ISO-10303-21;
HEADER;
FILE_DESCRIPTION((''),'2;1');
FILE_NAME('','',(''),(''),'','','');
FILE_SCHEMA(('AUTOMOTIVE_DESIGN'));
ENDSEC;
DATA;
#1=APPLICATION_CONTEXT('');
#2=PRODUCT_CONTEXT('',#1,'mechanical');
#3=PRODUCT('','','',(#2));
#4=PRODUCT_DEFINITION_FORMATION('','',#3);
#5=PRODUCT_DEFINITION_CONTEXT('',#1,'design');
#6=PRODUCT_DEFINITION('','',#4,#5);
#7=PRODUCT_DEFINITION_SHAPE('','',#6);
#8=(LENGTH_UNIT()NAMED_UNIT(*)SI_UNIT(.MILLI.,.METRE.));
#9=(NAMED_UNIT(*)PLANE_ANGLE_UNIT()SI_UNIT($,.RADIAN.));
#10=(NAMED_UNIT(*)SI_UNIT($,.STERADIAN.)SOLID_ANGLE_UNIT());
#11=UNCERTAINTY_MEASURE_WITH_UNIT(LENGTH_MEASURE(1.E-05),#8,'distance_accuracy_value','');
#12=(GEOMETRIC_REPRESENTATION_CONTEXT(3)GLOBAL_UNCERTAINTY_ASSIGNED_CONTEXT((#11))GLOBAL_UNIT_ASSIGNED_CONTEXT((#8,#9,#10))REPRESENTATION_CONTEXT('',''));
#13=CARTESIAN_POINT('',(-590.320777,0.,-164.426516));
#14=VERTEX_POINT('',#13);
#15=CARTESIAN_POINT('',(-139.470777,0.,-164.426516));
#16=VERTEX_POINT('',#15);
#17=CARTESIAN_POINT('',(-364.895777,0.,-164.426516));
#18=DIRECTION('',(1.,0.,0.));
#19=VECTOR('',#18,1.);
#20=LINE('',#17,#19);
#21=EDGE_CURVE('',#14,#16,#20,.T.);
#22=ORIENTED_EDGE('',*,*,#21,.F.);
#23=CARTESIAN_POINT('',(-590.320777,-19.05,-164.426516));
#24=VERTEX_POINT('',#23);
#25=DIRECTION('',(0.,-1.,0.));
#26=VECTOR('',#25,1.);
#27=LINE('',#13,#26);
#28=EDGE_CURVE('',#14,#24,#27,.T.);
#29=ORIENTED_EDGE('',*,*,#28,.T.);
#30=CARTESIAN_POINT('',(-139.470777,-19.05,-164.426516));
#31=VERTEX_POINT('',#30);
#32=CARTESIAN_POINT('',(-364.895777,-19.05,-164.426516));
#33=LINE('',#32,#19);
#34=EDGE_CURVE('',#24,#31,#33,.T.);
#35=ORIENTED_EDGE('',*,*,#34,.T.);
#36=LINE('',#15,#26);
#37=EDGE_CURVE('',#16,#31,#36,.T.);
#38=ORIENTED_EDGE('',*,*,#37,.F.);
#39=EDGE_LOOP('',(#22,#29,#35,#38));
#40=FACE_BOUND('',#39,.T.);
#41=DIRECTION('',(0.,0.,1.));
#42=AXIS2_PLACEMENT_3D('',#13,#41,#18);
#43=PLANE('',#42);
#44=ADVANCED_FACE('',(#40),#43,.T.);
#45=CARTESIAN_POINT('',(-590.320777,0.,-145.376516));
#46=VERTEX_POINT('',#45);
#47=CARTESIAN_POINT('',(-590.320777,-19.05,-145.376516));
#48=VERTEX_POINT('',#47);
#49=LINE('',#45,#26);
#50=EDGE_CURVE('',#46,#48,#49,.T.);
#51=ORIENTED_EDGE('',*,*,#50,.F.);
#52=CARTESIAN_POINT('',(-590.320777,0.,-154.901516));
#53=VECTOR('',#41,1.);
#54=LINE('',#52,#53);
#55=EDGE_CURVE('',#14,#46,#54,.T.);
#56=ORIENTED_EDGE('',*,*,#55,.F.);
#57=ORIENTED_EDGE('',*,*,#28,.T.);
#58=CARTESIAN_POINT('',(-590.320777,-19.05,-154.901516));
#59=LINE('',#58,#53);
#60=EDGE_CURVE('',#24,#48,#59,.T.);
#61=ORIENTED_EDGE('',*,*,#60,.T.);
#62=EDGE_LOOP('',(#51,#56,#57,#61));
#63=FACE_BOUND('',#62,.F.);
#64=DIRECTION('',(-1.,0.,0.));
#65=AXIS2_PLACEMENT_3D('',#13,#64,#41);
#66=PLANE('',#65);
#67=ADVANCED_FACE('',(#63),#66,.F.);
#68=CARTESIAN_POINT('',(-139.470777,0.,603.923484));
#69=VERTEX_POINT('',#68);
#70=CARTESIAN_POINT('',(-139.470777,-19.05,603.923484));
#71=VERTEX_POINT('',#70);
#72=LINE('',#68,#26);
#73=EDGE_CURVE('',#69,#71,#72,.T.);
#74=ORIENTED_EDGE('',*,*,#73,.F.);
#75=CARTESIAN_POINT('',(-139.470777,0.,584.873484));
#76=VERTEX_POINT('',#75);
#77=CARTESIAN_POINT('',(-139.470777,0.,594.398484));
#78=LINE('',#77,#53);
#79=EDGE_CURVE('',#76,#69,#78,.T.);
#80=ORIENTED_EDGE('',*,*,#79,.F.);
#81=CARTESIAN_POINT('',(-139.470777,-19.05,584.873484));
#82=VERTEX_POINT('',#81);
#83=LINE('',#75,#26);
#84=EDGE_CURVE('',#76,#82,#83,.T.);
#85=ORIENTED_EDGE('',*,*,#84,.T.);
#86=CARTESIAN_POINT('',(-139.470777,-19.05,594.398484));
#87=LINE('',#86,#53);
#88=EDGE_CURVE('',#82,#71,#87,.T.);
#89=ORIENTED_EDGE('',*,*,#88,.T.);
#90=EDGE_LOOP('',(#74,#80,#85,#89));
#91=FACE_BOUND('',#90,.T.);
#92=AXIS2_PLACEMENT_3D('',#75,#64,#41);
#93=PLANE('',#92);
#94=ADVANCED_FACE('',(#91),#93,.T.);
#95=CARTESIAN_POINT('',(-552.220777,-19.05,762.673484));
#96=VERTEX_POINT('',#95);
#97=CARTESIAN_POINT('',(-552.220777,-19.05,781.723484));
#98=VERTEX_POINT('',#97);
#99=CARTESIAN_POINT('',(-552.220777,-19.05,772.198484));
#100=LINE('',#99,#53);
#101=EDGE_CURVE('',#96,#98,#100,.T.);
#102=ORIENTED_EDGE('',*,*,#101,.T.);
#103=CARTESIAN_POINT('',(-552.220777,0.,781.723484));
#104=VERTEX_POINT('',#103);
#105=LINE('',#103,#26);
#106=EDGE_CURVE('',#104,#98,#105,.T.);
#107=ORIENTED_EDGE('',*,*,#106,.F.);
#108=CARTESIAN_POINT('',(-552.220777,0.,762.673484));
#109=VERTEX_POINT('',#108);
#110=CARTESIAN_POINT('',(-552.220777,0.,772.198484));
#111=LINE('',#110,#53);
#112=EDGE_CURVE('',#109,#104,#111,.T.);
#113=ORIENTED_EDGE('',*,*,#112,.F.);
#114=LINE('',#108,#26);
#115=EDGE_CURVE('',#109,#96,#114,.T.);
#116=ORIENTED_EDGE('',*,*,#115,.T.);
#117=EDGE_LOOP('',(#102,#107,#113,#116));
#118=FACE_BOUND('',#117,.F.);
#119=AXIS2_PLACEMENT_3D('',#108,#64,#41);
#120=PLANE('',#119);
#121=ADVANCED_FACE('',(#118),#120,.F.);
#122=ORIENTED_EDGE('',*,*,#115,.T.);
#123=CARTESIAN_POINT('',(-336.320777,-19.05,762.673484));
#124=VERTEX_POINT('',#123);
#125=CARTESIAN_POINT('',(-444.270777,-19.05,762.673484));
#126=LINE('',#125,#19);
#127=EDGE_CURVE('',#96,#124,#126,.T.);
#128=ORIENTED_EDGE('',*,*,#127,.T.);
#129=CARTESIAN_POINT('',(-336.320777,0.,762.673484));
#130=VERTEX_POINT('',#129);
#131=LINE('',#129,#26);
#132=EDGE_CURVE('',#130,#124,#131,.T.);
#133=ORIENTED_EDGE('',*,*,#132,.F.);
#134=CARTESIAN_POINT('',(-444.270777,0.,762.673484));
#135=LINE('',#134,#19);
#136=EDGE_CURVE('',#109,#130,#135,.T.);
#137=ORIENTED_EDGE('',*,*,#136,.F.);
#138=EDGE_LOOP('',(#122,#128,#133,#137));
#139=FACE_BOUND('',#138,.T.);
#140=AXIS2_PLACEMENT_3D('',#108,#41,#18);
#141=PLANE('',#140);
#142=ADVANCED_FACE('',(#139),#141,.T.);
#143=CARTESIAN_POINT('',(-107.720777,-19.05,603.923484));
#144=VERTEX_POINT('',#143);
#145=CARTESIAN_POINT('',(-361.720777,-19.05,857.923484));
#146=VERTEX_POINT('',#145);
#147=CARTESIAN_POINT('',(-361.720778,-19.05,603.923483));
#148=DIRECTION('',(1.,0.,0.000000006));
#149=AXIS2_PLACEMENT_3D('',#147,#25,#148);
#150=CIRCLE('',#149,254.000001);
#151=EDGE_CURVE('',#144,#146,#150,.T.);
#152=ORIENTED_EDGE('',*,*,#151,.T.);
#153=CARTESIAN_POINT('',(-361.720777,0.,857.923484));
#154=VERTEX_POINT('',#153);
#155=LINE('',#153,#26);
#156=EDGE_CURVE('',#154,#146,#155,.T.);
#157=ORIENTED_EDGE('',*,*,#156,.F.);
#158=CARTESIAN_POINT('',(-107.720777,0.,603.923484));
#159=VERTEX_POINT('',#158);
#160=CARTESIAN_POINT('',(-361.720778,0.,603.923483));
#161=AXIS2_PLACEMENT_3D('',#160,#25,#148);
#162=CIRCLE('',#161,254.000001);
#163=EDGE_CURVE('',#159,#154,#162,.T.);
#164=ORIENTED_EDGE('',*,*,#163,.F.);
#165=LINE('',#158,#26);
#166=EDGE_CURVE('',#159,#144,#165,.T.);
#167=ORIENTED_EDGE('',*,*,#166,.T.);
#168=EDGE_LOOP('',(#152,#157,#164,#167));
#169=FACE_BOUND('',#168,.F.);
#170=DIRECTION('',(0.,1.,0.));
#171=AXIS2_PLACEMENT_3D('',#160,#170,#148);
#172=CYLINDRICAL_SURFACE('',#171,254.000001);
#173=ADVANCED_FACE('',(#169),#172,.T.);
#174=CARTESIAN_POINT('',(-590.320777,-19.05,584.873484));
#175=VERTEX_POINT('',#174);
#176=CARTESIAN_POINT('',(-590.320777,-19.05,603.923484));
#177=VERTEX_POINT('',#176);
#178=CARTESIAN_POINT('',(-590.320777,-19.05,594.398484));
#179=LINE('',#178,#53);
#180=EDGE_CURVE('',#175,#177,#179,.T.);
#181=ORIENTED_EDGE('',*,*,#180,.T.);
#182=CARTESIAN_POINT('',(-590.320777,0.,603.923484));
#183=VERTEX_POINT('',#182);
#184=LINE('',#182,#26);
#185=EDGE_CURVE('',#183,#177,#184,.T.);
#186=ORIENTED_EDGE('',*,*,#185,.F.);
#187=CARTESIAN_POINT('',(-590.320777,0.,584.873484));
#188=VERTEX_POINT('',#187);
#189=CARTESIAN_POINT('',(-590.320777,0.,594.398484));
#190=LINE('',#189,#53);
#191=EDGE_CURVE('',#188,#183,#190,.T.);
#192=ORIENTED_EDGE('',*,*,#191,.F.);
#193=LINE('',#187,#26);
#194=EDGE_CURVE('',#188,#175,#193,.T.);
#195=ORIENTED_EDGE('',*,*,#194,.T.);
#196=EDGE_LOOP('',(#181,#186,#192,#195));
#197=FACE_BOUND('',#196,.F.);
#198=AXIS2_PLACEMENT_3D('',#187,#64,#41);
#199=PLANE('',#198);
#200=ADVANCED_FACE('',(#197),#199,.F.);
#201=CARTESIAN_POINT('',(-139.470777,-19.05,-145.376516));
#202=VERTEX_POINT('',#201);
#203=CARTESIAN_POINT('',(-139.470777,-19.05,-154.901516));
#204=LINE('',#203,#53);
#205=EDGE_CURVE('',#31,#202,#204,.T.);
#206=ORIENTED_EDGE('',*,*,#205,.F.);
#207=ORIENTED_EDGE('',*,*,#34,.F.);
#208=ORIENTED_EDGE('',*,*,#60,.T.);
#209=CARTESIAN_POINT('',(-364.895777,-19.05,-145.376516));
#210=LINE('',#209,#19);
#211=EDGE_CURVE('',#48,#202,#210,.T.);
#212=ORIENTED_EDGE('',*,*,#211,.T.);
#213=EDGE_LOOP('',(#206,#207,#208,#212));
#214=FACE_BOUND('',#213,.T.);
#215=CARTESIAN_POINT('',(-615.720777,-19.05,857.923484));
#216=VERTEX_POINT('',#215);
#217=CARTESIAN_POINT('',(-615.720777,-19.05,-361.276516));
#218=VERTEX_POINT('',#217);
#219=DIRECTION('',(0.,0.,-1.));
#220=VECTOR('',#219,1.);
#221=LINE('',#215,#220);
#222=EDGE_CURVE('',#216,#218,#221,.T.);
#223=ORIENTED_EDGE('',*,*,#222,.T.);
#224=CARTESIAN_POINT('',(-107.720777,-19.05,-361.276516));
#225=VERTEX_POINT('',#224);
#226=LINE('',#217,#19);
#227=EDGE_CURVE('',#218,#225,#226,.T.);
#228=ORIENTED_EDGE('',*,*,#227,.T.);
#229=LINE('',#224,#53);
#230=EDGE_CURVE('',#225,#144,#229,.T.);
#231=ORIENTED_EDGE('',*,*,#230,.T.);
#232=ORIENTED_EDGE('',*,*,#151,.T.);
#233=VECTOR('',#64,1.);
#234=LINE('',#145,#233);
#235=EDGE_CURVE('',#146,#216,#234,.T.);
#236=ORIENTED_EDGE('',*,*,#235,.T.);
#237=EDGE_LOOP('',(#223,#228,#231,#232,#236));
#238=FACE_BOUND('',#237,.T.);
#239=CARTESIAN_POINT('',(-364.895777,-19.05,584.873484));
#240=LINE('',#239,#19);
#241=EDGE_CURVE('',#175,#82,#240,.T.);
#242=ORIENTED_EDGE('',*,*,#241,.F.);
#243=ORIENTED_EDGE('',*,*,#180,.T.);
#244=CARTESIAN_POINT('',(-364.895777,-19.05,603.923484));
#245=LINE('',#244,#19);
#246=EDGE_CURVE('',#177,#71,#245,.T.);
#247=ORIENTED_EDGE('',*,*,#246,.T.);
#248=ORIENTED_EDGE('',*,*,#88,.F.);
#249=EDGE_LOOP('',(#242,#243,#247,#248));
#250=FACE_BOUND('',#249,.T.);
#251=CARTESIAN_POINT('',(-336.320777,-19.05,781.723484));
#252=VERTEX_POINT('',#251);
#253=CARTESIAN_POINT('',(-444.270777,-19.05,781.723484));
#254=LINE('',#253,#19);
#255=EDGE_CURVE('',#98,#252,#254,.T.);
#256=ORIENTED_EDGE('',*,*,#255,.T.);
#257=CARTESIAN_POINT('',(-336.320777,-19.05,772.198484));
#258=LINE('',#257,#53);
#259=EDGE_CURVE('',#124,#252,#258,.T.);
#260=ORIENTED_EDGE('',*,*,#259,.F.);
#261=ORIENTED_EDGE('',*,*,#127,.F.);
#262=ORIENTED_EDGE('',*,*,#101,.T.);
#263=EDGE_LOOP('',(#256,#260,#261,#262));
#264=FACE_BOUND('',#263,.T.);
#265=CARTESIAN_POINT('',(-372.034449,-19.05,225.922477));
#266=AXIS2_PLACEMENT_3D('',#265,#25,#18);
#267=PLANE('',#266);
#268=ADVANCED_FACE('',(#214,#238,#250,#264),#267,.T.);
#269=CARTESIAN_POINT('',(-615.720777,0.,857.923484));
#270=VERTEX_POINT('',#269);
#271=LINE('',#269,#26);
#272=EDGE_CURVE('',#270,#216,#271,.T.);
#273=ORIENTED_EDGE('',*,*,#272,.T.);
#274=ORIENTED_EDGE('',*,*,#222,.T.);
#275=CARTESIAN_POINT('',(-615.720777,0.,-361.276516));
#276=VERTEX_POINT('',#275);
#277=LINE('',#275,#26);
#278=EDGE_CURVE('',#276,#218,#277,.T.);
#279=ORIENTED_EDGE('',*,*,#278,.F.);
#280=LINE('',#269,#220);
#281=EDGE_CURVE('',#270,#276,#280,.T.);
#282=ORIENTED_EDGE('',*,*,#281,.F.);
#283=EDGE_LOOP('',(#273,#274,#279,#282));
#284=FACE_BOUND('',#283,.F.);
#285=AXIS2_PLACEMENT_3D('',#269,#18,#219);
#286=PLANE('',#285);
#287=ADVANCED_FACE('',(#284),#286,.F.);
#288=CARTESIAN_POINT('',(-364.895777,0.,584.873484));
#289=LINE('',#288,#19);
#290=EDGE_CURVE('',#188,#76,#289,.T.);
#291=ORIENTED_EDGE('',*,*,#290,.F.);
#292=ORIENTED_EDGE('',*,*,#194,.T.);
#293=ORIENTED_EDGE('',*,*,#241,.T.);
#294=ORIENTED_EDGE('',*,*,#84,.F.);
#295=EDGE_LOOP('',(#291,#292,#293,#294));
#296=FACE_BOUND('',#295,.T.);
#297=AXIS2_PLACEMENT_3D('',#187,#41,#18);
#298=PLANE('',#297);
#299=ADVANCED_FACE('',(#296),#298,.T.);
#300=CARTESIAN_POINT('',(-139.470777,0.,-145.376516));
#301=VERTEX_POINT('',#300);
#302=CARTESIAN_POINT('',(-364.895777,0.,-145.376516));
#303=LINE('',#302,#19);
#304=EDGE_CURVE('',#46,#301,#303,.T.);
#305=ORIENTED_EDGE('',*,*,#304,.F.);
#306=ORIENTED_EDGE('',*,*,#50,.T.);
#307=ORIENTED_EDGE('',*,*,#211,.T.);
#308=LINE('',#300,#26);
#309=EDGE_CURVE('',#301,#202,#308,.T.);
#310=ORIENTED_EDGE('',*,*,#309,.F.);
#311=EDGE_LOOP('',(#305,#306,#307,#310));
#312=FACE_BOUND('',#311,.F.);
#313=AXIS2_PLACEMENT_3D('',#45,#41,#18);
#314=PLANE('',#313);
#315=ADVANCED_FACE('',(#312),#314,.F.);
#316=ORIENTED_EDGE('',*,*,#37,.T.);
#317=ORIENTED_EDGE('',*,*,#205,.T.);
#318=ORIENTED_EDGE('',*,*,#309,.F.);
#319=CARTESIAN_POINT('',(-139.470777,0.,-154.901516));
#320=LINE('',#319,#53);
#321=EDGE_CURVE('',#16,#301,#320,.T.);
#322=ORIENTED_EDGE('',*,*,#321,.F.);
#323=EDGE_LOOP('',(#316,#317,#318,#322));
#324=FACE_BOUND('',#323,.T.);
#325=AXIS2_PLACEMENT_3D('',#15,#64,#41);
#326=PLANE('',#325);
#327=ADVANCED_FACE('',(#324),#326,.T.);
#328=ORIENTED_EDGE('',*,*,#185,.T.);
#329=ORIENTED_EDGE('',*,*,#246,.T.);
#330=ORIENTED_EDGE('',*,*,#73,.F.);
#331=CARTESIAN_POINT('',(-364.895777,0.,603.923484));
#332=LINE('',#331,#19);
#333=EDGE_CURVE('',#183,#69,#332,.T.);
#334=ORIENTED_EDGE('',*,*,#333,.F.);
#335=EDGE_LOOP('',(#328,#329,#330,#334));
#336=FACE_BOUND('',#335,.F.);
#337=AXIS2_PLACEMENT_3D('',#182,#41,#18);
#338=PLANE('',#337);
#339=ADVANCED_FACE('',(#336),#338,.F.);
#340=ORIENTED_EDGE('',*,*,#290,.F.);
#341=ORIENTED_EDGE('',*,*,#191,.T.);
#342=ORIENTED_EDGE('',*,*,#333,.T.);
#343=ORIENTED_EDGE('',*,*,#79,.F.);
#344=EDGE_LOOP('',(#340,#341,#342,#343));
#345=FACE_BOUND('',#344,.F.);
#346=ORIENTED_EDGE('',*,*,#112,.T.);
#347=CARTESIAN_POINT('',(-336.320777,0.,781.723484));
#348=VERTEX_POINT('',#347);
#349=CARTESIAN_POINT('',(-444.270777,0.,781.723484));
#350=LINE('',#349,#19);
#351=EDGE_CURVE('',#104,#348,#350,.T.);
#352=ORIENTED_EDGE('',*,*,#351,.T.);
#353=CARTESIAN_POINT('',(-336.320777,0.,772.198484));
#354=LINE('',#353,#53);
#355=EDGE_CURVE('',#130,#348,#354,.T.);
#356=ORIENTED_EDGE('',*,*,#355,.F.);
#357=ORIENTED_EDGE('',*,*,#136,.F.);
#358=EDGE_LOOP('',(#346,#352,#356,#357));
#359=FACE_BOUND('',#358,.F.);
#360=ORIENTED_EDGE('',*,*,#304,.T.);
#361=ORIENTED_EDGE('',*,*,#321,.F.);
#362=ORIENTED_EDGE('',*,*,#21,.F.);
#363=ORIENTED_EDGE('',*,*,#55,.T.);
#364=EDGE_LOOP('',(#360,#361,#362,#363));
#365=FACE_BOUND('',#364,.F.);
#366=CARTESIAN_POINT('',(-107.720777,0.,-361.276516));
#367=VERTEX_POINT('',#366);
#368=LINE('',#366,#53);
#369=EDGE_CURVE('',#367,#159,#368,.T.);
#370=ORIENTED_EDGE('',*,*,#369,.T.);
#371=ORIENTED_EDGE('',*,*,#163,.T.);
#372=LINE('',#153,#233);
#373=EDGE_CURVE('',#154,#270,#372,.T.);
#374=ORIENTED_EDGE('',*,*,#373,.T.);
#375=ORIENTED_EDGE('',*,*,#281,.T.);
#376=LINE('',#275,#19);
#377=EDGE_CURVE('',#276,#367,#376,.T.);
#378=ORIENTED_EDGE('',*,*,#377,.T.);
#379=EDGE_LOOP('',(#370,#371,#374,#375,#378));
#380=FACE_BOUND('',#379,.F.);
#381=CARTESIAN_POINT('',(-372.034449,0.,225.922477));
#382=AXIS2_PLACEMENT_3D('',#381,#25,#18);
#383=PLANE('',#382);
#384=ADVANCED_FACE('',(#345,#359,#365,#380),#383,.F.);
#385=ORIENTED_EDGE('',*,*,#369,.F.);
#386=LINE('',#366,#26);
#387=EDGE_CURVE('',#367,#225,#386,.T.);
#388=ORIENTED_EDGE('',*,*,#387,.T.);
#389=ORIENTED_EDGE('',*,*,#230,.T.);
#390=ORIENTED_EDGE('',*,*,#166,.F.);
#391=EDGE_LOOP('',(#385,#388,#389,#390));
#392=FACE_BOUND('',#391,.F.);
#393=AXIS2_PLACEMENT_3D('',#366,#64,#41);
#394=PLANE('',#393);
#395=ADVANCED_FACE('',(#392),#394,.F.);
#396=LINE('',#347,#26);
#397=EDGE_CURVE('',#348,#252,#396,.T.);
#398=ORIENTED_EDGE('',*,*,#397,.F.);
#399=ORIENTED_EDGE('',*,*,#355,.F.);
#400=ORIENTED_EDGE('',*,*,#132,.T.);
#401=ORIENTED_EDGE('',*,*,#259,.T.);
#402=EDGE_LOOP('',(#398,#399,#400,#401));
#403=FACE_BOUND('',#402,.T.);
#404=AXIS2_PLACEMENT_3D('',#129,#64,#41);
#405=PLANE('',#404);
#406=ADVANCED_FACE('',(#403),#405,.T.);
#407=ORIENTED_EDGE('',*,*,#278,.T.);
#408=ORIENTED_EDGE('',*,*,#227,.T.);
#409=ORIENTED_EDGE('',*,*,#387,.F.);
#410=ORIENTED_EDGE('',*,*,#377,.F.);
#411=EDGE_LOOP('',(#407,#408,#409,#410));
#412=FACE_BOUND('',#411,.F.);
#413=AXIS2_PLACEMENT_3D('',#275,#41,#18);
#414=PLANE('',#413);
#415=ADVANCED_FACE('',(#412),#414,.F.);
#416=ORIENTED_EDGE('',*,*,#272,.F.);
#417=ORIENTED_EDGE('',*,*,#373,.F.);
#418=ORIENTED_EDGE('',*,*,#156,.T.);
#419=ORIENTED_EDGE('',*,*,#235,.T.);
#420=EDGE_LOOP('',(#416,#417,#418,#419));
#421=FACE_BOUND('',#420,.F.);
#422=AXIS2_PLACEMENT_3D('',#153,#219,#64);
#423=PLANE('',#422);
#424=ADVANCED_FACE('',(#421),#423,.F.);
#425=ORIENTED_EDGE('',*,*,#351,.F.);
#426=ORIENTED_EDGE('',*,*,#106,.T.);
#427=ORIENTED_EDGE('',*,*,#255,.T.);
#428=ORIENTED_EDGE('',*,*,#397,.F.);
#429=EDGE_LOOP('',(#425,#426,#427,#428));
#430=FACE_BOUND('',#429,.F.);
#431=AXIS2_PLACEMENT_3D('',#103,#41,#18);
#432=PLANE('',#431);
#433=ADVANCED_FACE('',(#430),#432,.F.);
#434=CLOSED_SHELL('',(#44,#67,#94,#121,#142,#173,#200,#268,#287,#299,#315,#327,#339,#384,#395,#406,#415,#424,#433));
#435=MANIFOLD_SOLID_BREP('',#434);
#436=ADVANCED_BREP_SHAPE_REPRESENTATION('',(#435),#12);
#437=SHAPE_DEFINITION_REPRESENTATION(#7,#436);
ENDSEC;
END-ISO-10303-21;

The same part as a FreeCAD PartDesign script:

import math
import FreeCAD as App
import Part
import Sketcher

V = App.Vector
Q = App.Units.Quantity

doc = App.newDocument("Part")
body = doc.addObject("PartDesign::Body", "Body")

# Sketch on XZ plane
sketch1 = doc.addObject("Sketcher::SketchObject", "Sketch")
body.addObject(sketch1)
sketch1.AttachmentSupport = (doc.XZ_Plane, [""])
sketch1.MapMode = "FlatFace"
sketch1.addGeometry([
    Part.LineSegment(V(-615.720777, 857.923484, 0), V(-615.720777, -361.276516, 0)),  # 0
    Part.LineSegment(V(-615.720777, -361.276516, 0), V(-107.720777, -361.276516, 0)),  # 1
    Part.LineSegment(V(-107.720777, -361.276516, 0), V(-107.720777, 603.923484, 0)),  # 2
    Part.ArcOfCircle(Part.Circle(V(-361.720778, 603.923483, 0), V(0, 0, 1), 254.000001), math.radians(0), math.radians(90)),  # 3
    Part.LineSegment(V(-361.720777, 857.923484, 0), V(-615.720777, 857.923484, 0)),  # 4
    Part.LineSegment(V(-139.470777, -164.426516, 0), V(-590.320777, -164.426516, 0)),  # 5
    Part.LineSegment(V(-590.320777, -164.426516, 0), V(-590.320777, -145.376516, 0)),  # 6
    Part.LineSegment(V(-590.320777, -145.376516, 0), V(-139.470777, -145.376516, 0)),  # 7
    Part.LineSegment(V(-139.470777, -145.376516, 0), V(-139.470777, -164.426516, 0)),  # 8
    Part.LineSegment(V(-139.470777, 584.873484, 0), V(-590.320777, 584.873484, 0)),  # 9
    Part.LineSegment(V(-590.320777, 584.873484, 0), V(-590.320777, 603.923484, 0)),  # 10
    Part.LineSegment(V(-590.320777, 603.923484, 0), V(-139.470777, 603.923484, 0)),  # 11
    Part.LineSegment(V(-139.470777, 603.923484, 0), V(-139.470777, 584.873484, 0)),  # 12
    Part.LineSegment(V(-336.320777, 762.673484, 0), V(-552.220777, 762.673484, 0)),  # 13
    Part.LineSegment(V(-552.220777, 762.673484, 0), V(-552.220777, 781.723484, 0)),  # 14
    Part.LineSegment(V(-552.220777, 781.723484, 0), V(-336.320777, 781.723484, 0)),  # 15
    Part.LineSegment(V(-336.320777, 781.723484, 0), V(-336.320777, 762.673484, 0)),  # 16
], False)
sketch1.addConstraint([
    Sketcher.Constraint("Coincident", 0, 2, 1, 1),
    Sketcher.Constraint("Coincident", 1, 2, 2, 1),
    Sketcher.Constraint("Tangent", 2, 2, 3, 1),
    Sketcher.Constraint("Tangent", 3, 2, 4, 1),
    Sketcher.Constraint("Coincident", 4, 2, 0, 1),
    Sketcher.Constraint("Coincident", 5, 2, 6, 1),
    Sketcher.Constraint("Coincident", 6, 2, 7, 1),
    Sketcher.Constraint("Coincident", 7, 2, 8, 1),
    Sketcher.Constraint("Coincident", 8, 2, 5, 1),
    Sketcher.Constraint("Coincident", 9, 2, 10, 1),
    Sketcher.Constraint("Coincident", 10, 2, 11, 1),
    Sketcher.Constraint("Coincident", 11, 2, 12, 1),
    Sketcher.Constraint("Coincident", 12, 2, 9, 1),
    Sketcher.Constraint("Coincident", 13, 2, 14, 1),
    Sketcher.Constraint("Coincident", 14, 2, 15, 1),
    Sketcher.Constraint("Coincident", 15, 2, 16, 1),
    Sketcher.Constraint("Coincident", 16, 2, 13, 1),
    Sketcher.Constraint("Vertical", 0),
    Sketcher.Constraint("Horizontal", 1),
    Sketcher.Constraint("Vertical", 2),
    Sketcher.Constraint("Horizontal", 4),
    Sketcher.Constraint("Horizontal", 5),
    Sketcher.Constraint("Vertical", 6),
    Sketcher.Constraint("Horizontal", 7),
    Sketcher.Constraint("Vertical", 8),
    Sketcher.Constraint("Horizontal", 9),
    Sketcher.Constraint("Vertical", 10),
    Sketcher.Constraint("Horizontal", 11),
    Sketcher.Constraint("Vertical", 12),
    Sketcher.Constraint("Horizontal", 13),
    Sketcher.Constraint("Vertical", 14),
    Sketcher.Constraint("Horizontal", 15),
    Sketcher.Constraint("Vertical", 16),
    Sketcher.Constraint("Horizontal", 2, 2, 10, 2),
    Sketcher.Constraint("Vertical", 6, 2, 9, 2),
    Sketcher.Constraint("Vertical", 8, 2, 11, 2),
    Sketcher.Constraint("Equal", 8, 10),
    Sketcher.Constraint("Equal", 12, 14),
    Sketcher.Constraint("Radius", 3, Q("10.0000001 in")),
    Sketcher.Constraint("DistanceX", 1, 1, 1, 2, Q("20 in")),
    Sketcher.Constraint("DistanceY", 0, 2, 0, 1, Q("48 in")),
    Sketcher.Constraint("DistanceX", 13, 2, 13, 1, Q("8.5 in")),
    Sketcher.Constraint("DistanceX", 0, 2, 5, 2, Q("1 in")),
    Sketcher.Constraint("DistanceY", 9, 2, 13, 2, Q("7 in")),
    Sketcher.Constraint("DistanceX", 3, 3, 15, 2, Q("1.0000001 in")),
    Sketcher.Constraint("DistanceX", 5, 2, 5, 1, Q("17.75 in")),
    Sketcher.Constraint("DistanceY", 6, 1, 6, 2, Q("0.75 in")),
    Sketcher.Constraint("DistanceY", 0, 2, 6, 2, Q("8.5 in")),
    Sketcher.Constraint("DistanceX", 3, 3, -1, 1, Q("361.720778 mm")),
    Sketcher.Constraint("DistanceY", -1, 1, 3, 3, Q("603.923483 mm")),
])
pad1 = doc.addObject("PartDesign::Pad", "Pad")
body.addObject(pad1)
pad1.Profile = sketch1
pad1.Length = Q("0.75 in")

doc.recompute()
